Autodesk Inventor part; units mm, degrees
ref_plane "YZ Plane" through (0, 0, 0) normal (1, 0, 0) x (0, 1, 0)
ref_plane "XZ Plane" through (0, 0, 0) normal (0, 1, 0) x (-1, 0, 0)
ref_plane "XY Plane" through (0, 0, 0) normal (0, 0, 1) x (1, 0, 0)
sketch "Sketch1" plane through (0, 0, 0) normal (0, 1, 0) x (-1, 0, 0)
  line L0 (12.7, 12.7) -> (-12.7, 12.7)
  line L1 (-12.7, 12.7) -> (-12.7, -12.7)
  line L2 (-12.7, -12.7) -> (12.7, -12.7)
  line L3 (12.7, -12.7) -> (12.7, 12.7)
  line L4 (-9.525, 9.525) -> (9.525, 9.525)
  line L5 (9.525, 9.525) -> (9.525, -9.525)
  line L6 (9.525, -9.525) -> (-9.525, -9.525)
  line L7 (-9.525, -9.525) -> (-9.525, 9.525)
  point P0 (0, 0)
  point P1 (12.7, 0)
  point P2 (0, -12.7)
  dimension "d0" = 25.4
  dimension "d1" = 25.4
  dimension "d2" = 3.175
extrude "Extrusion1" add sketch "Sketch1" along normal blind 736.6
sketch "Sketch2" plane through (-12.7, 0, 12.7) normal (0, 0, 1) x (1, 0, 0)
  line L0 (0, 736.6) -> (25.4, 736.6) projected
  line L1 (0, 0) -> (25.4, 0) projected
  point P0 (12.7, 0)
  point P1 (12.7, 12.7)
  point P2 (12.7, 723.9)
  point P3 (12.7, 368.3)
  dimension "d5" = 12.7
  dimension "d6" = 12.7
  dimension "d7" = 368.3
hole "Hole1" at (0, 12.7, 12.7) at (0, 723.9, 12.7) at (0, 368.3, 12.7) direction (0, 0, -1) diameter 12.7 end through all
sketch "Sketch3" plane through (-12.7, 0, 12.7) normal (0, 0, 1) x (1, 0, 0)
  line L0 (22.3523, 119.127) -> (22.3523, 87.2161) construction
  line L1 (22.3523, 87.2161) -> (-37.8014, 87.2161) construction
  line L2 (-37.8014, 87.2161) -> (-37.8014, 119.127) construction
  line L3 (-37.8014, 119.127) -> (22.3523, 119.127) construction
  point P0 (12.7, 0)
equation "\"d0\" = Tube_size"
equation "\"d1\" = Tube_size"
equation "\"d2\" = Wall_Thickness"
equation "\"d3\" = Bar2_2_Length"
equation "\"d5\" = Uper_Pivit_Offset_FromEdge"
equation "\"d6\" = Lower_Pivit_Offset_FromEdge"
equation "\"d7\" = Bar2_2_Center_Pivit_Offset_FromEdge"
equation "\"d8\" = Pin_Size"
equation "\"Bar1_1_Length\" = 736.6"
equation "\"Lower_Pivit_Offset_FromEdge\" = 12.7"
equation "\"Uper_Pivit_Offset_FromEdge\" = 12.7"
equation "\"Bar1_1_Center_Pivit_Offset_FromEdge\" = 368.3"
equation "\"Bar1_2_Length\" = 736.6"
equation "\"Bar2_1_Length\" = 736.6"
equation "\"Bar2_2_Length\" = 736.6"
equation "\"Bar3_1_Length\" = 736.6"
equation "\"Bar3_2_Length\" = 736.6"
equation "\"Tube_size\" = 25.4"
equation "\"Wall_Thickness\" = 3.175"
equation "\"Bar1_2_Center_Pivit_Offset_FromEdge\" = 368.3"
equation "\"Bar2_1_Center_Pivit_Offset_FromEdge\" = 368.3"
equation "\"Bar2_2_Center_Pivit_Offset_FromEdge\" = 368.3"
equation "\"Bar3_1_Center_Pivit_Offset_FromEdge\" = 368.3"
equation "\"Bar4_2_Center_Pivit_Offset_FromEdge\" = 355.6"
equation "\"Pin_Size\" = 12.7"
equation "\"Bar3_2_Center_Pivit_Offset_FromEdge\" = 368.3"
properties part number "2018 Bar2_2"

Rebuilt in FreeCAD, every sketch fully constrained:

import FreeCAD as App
import Part
import Sketcher

V = App.Vector
Q = App.Units.Quantity

doc = App.newDocument("Part")
body = doc.addObject("PartDesign::Body", "Body")

# Sketch on XZ plane
sketch1 = body.newObject("Sketcher::SketchObject", "Sketch")
sketch1.AttachmentSupport = (doc.getObject("XZ_Plane"), [""])
sketch1.MapMode = "FlatFace"
sketch1.addGeometry([
    Part.LineSegment(V(-13, -13, 0), V(-13, 13, 0)),  # 0
    Part.LineSegment(V(-13, 13, 0), V(13, 13, 0)),  # 1
    Part.LineSegment(V(13, 13, 0), V(13, -13, 0)),  # 2
    Part.LineSegment(V(13, -13, 0), V(-13, -13, 0)),  # 3
    Part.LineSegment(V(10, -10, 0), V(10, 10, 0)),  # 4
    Part.LineSegment(V(10, 10, 0), V(-10, 10, 0)),  # 5
    Part.LineSegment(V(-10, 10, 0), V(-10, -10, 0)),  # 6
    Part.LineSegment(V(-10, -10, 0), V(10, -10, 0)),  # 7
], False)
sketch1.addConstraint([
    Sketcher.Constraint("Coincident", 0, 2, 1, 1),
    Sketcher.Constraint("Coincident", 1, 2, 2, 1),
    Sketcher.Constraint("Coincident", 2, 2, 3, 1),
    Sketcher.Constraint("Coincident", 3, 2, 0, 1),
    Sketcher.Constraint("Coincident", 4, 2, 5, 1),
    Sketcher.Constraint("Coincident", 5, 2, 6, 1),
    Sketcher.Constraint("Coincident", 6, 2, 7, 1),
    Sketcher.Constraint("Coincident", 7, 2, 4, 1),
    Sketcher.Constraint("Vertical", 0),
    Sketcher.Constraint("Horizontal", 1),
    Sketcher.Constraint("Vertical", 2),
    Sketcher.Constraint("Horizontal", 3),
    Sketcher.Constraint("Vertical", 4),
    Sketcher.Constraint("Horizontal", 5),
    Sketcher.Constraint("Vertical", 6),
    Sketcher.Constraint("Horizontal", 7),
    Sketcher.Constraint("Symmetric", 0, 2, 2, 2, -1, 1),
    Sketcher.Constraint("Symmetric", 4, 2, 6, 2, -1, 1),
    Sketcher.Constraint("Equal", 3, 0),
    Sketcher.Constraint("Equal", 7, 4),
    Sketcher.Constraint("DistanceX", 1, 1, 1, 2, Q("1 in")),
    Sketcher.Constraint("DistanceX", 4, 2, 1, 2, Q("0.125 in")),
])
pad1 = body.newObject("PartDesign::Pad", "Pad")
pad1.Profile = sketch1
pad1.Length = Q("29 in")
pad1.Reversed = True

# Sketch on XY plane
sketch2 = body.newObject("Sketcher::SketchObject", "Sketch001")
sketch2.AttachmentSupport = (doc.getObject("XY_Plane"), [""])
sketch2.MapMode = "FlatFace"
sketch2.AttachmentOffset = App.Placement(V(0, 0, 0.5 * 25.4), App.Rotation())
sketch2.addGeometry([
    Part.Circle(V(0, 13, 0), V(0, 0, 1), 6),
    Part.Circle(V(0, 724, 0), V(0, 0, 1), 6),
    Part.Circle(V(0, 368, 0), V(0, 0, 1), 6),
], False)
sketch2.addConstraint([
    Sketcher.Constraint("Equal", 0, 1),
    Sketcher.Constraint("Equal", 1, 2),
    Sketcher.Constraint("PointOnObject", 0, 3, -2),
    Sketcher.Constraint("PointOnObject", 1, 3, -2),
    Sketcher.Constraint("PointOnObject", 2, 3, -2),
    Sketcher.Constraint("Diameter", 0, Q("0.5 in")),
    Sketcher.Constraint("DistanceY", 0, 3, 1, 3, Q("28 in")),
    Sketcher.Constraint("DistanceY", 2, 3, 1, 3, Q("14 in")),
    Sketcher.Constraint("DistanceY", -1, 1, 0, 3, Q("0.5 in")),
])
doc.recompute()
hole = body.newObject("PartDesign::Hole", "Hole")
hole.Profile = sketch2
hole.ThreadType = "None"
hole.Diameter = Q("0.5 in")
hole.DepthType = "ThroughAll"

doc.recompute()
